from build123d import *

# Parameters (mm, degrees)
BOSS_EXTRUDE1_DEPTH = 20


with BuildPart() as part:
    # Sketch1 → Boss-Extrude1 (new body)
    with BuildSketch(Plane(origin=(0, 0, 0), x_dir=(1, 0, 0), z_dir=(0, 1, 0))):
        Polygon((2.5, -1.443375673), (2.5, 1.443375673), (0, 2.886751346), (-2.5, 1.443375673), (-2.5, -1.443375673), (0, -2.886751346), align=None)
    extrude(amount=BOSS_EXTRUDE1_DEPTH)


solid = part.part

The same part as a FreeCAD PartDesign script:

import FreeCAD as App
import Part
import Sketcher

V = App.Vector
Q = App.Units.Quantity

doc = App.newDocument("Part")
body = doc.addObject("PartDesign::Body", "Body")

# Sketch on XZ plane
sketch1 = body.newObject("Sketcher::SketchObject", "Sketch")
sketch1.AttachmentSupport = (doc.getObject("XZ_Plane"), [""])
sketch1.MapMode = "FlatFace"
sketch1.addGeometry([
    Part.LineSegment(V(2.5, 1.4, 0), V(2.5, -1.4, 0)),  # 0
    Part.LineSegment(V(2.5, -1.4, 0), V(0, -2.9, 0)),  # 1
    Part.LineSegment(V(0, -2.9, 0), V(-2.5, -1.4, 0)),  # 2
    Part.LineSegment(V(-2.5, -1.4, 0), V(-2.5, 1.4, 0)),  # 3
    Part.LineSegment(V(-2.5, 1.4, 0), V(0, 2.9, 0)),  # 4
    Part.LineSegment(V(0, 2.9, 0), V(2.5, 1.4, 0)),  # 5
], False)
sketch1.addConstraint([
    Sketcher.Constraint("Coincident", 0, 2, 1, 1),
    Sketcher.Constraint("Coincident", 1, 2, 2, 1),
    Sketcher.Constraint("Coincident", 2, 2, 3, 1),
    Sketcher.Constraint("Coincident", 3, 2, 4, 1),
    Sketcher.Constraint("Coincident", 4, 2, 5, 1),
    Sketcher.Constraint("Coincident", 5, 2, 0, 1),
    Sketcher.Constraint("Vertical", 0),
    Sketcher.Constraint("Vertical", 3),
    Sketcher.Constraint("Symmetric", 0, 2, 3, 2, -1, 1),
    Sketcher.Constraint("Symmetric", 1, 2, 4, 2, -1, 1),
    Sketcher.Constraint("PointOnObject", 1, 2, -2),
    Sketcher.Constraint("Parallel", 2, 5),
    Sketcher.Constraint("Horizontal", 0, 2, 2, 2),
    Sketcher.Constraint("Angle", 1, Q("-150 deg")),
    Sketcher.Constraint("DistanceX", 2, 2, 0, 2, 5.0),
    Sketcher.Constraint("DistanceY", 0, 2, 0, 1, 2.886751),
])
pad1 = body.newObject("PartDesign::Pad", "Pad")
pad1.Profile = sketch1
pad1.Length = 20
pad1.Reversed = True

doc.recompute()
